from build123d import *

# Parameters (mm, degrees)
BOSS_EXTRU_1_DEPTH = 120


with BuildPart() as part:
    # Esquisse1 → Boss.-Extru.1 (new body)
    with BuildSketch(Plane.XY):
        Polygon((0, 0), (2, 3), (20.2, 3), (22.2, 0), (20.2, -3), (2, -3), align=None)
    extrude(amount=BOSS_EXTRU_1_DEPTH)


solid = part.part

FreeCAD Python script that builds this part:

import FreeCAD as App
import Part
import Sketcher

doc = App.newDocument("Part")
params = doc.addObject("Spreadsheet::Sheet", "Params")
for row, (alias, value) in enumerate([
    ("sketch1_width", "18.2 mm"),
    ("pad1_length", "120 mm"),
], start=1):
    params.set(f"A{row}", alias)
    params.set(f"B{row}", "=" + value)
    params.setAlias(f"B{row}", alias)

body = doc.addObject("PartDesign::Body", "Body")

# Sketch on XY plane
sketch1 = body.newObject("Sketcher::SketchObject", "Sketch")
sketch1.AttachmentSupport = (doc.getObject("XY_Plane"), [""])
sketch1.MapMode = "FlatFace"
sketch1.addGeometry(Part.LineSegment(App.Vector(2, 3, 0), App.Vector(0, 0, 0)), False)
sketch1.addGeometry(Part.LineSegment(App.Vector(0, 0, 0), App.Vector(2, -3, 0)), False)
sketch1.addGeometry(Part.LineSegment(App.Vector(2, -3, 0), App.Vector(20.2, -3, 0)), False)
sketch1.addGeometry(Part.LineSegment(App.Vector(20.2, -3, 0), App.Vector(22.2, 0, 0)), False)
sketch1.addGeometry(Part.LineSegment(App.Vector(22.2, 0, 0), App.Vector(20.2, 3, 0)), False)
sketch1.addGeometry(Part.LineSegment(App.Vector(20.2, 3, 0), App.Vector(2, 3, 0)), False)
sketch1.addConstraint(Sketcher.Constraint("Coincident", 0, 2, 1, 1))
sketch1.addConstraint(Sketcher.Constraint("Coincident", 1, 2, 2, 1))
sketch1.addConstraint(Sketcher.Constraint("Coincident", 2, 2, 3, 1))
sketch1.addConstraint(Sketcher.Constraint("Coincident", 3, 2, 4, 1))
sketch1.addConstraint(Sketcher.Constraint("Coincident", 4, 2, 5, 1))
sketch1.addConstraint(Sketcher.Constraint("Coincident", 5, 2, 0, 1))
sketch1.addConstraint(Sketcher.Constraint("Horizontal", 2))
sketch1.addConstraint(Sketcher.Constraint("Horizontal", 5))
sketch1.addConstraint(Sketcher.Constraint("Coincident", 0, 2, -1, 1))
sketch1.addConstraint(Sketcher.Constraint("Symmetric", 2, 2, 4, 2, -1))
sketch1.addConstraint(Sketcher.Constraint("PointOnObject", 3, 2, -1))
sketch1.addConstraint(Sketcher.Constraint("Parallel", 0, 3))
sketch1.addConstraint(Sketcher.Constraint("Parallel", 1, 4))
sketch1.addConstraint(Sketcher.Constraint("DistanceX", 2, 1, 2, 2, 18.2))
sketch1.addConstraint(Sketcher.Constraint("DistanceX", -1, 1, 1, 2, 2.0))
sketch1.addConstraint(Sketcher.Constraint("DistanceY", 1, 2, -1, 1, 3.0))
sketch1.setExpression("Constraints[13]", "Params.sketch1_width")
pad1 = body.newObject("PartDesign::Pad", "Pad")
pad1.Profile = sketch1
pad1.setExpression("Length", "Params.pad1_length")

doc.recompute()
